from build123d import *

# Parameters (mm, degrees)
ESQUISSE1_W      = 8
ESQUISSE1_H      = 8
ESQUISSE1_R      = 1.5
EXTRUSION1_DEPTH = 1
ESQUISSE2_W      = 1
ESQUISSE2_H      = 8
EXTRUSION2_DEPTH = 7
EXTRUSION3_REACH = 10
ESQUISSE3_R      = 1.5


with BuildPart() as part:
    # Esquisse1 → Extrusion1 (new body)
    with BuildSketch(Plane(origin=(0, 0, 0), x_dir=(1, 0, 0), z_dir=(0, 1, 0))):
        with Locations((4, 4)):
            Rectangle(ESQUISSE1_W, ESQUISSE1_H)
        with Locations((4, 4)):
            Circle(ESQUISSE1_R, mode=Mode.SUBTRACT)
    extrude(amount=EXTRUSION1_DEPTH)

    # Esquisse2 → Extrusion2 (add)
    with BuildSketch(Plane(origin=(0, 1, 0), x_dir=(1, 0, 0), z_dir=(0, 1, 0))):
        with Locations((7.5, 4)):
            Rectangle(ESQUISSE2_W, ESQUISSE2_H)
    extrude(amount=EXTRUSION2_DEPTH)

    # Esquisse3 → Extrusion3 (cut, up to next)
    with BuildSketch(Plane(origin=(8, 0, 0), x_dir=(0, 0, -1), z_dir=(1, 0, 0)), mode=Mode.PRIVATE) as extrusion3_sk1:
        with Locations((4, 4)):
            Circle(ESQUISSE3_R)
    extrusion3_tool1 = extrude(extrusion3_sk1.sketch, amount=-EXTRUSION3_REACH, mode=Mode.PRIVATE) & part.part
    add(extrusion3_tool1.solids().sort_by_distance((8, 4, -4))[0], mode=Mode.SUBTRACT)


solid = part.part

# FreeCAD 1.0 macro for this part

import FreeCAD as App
import Part
import Sketcher
from FreeCAD import Vector

doc = App.newDocument("Part")
body = doc.addObject("PartDesign::Body", "Body")

# Sketch on XZ plane
sketch1 = body.newObject("Sketcher::SketchObject", "Sketch")
sketch1.AttachmentSupport = (doc.getObject("XZ_Plane"), [""])
sketch1.MapMode = "FlatFace"
sketch1.addGeometry(Part.LineSegment(Vector(0, -8, 0), Vector(0, 0, 0)), False)
sketch1.addGeometry(Part.LineSegment(Vector(0, 0, 0), Vector(8, 0, 0)), False)
sketch1.addGeometry(Part.LineSegment(Vector(8, 0, 0), Vector(8, -8, 0)), False)
sketch1.addGeometry(Part.LineSegment(Vector(8, -8, 0), Vector(0, -8, 0)), False)
sketch1.addGeometry(Part.Circle(Vector(4, -4, 0), Vector(0, 0, 1), 1.5), False)
sketch1.addConstraint(Sketcher.Constraint("Coincident", 0, 2, 1, 1))
sketch1.addConstraint(Sketcher.Constraint("Coincident", 1, 2, 2, 1))
sketch1.addConstraint(Sketcher.Constraint("Coincident", 2, 2, 3, 1))
sketch1.addConstraint(Sketcher.Constraint("Coincident", 3, 2, 0, 1))
sketch1.addConstraint(Sketcher.Constraint("Vertical", 0))
sketch1.addConstraint(Sketcher.Constraint("Horizontal", 1))
sketch1.addConstraint(Sketcher.Constraint("Vertical", 2))
sketch1.addConstraint(Sketcher.Constraint("Horizontal", 3))
sketch1.addConstraint(Sketcher.Constraint("Coincident", 0, 2, -1, 1))
sketch1.addConstraint(Sketcher.Constraint("Equal", 3, 0))
sketch1.addConstraint(Sketcher.Constraint("Diameter", 4, 3.0))
sketch1.addConstraint(Sketcher.Constraint("DistanceX", 1, 1, 1, 2, 8.0))
sketch1.addConstraint(Sketcher.Constraint("DistanceX", -1, 1, 4, 3, 4.0))
sketch1.addConstraint(Sketcher.Constraint("DistanceY", 4, 3, -1, 1, 4.0))
pad1 = body.newObject("PartDesign::Pad", "Pad")
pad1.Profile = sketch1
pad1.Length = 1
pad1.Reversed = True

# Sketch on XZ plane
sketch2 = body.newObject("Sketcher::SketchObject", "Sketch001")
sketch2.AttachmentSupport = (doc.getObject("XZ_Plane"), [""])
sketch2.MapMode = "FlatFace"
sketch2.AttachmentOffset = App.Placement(Vector(0, 0, -1), App.Rotation())
sketch2.addGeometry(Part.LineSegment(Vector(7, -8, 0), Vector(7, 0, 0)), False)
sketch2.addGeometry(Part.LineSegment(Vector(7, 0, 0), Vector(8, 0, 0)), False)
sketch2.addGeometry(Part.LineSegment(Vector(8, 0, 0), Vector(8, -8, 0)), False)
sketch2.addGeometry(Part.LineSegment(Vector(8, -8, 0), Vector(7, -8, 0)), False)
sketch2.addConstraint(Sketcher.Constraint("Coincident", 0, 2, 1, 1))
sketch2.addConstraint(Sketcher.Constraint("Coincident", 1, 2, 2, 1))
sketch2.addConstraint(Sketcher.Constraint("Coincident", 2, 2, 3, 1))
sketch2.addConstraint(Sketcher.Constraint("Coincident", 3, 2, 0, 1))
sketch2.addConstraint(Sketcher.Constraint("Vertical", 0))
sketch2.addConstraint(Sketcher.Constraint("Horizontal", 1))
sketch2.addConstraint(Sketcher.Constraint("Vertical", 2))
sketch2.addConstraint(Sketcher.Constraint("Horizontal", 3))
sketch2.addConstraint(Sketcher.Constraint("PointOnObject", 0, 2, -1))
sketch2.addConstraint(Sketcher.Constraint("DistanceX", 1, 1, 1, 2, 1.0))
sketch2.addConstraint(Sketcher.Constraint("DistanceY", 0, 1, 0, 2, 8.0))
sketch2.addConstraint(Sketcher.Constraint("DistanceX", -1, 1, 0, 2, 7.0))
pad2 = body.newObject("PartDesign::Pad", "Pad001")
pad2.Profile = sketch2
pad2.Length = 7
pad2.Reversed = True

# Sketch on YZ plane
sketch3 = body.newObject("Sketcher::SketchObject", "Sketch002")
sketch3.AttachmentSupport = (doc.getObject("YZ_Plane"), [""])
sketch3.MapMode = "FlatFace"
sketch3.AttachmentOffset = App.Placement(Vector(0, 0, 8), App.Rotation())
sketch3.addGeometry(Part.Circle(Vector(4, -4, 0), Vector(0, 0, 1), 1.5), False)
sketch3.addConstraint(Sketcher.Constraint("Diameter", 0, 3.0))
sketch3.addConstraint(Sketcher.Constraint("DistanceX", -1, 1, 0, 3, 4.0))
sketch3.addConstraint(Sketcher.Constraint("DistanceY", 0, 3, -1, 1, 4.0))
pocket1 = body.newObject("PartDesign::Pocket", "Pocket")
pocket1.Profile = sketch3
pocket1.Type = "UpToFirst"

doc.recompute()
